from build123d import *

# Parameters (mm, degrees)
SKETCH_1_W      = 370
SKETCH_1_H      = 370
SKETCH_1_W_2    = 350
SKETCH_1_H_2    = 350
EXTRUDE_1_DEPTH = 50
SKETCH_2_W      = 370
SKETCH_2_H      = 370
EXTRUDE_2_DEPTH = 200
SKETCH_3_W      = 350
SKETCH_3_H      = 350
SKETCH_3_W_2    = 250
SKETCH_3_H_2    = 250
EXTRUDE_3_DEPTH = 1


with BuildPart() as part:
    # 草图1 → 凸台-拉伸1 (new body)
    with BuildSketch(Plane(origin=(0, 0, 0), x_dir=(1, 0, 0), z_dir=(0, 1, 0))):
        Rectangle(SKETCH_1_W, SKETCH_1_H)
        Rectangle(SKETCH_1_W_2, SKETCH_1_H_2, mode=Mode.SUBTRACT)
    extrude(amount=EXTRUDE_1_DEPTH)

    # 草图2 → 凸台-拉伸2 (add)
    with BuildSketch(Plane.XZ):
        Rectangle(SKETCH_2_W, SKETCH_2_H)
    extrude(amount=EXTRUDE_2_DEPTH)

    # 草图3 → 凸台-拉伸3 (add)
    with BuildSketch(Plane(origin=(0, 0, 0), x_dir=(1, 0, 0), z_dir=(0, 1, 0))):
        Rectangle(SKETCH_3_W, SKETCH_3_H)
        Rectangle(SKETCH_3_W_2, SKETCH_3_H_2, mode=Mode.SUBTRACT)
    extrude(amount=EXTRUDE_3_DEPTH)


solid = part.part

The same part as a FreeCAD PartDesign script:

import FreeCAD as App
import Part
import Sketcher

V = App.Vector
Q = App.Units.Quantity


def add_polygon(sketch, points):
    """Adds a closed chain of lines whose ends are joined by coincident constraints."""
    first, n = sketch.GeometryCount, len(points)
    for a, b in zip(points, points[1:] + points[:1]):
        sketch.addGeometry(Part.LineSegment(App.Vector(*a, 0), App.Vector(*b, 0)), False)
    for i in range(n):
        sketch.addConstraint(Sketcher.Constraint("Coincident", first + i, 2, first + (i + 1) % n, 1))

doc = App.newDocument("Part")
body = doc.addObject("PartDesign::Body", "Body")

# Sketch on XZ plane
sketch1 = body.newObject("Sketcher::SketchObject", "Sketch")
sketch1.AttachmentSupport = (doc.getObject("XZ_Plane"), [""])
sketch1.MapMode = "FlatFace"
add_polygon(sketch1, [(-185, -185), (-185, 185), (185, 185), (185, -185)])  # lines 0-3
add_polygon(sketch1, [(175, 175), (-175, 175), (-175, -175), (175, -175)])  # lines 4-7
sketch1.addConstraint(Sketcher.Constraint("Vertical", 0))
sketch1.addConstraint(Sketcher.Constraint("Horizontal", 1))
sketch1.addConstraint(Sketcher.Constraint("Vertical", 2))
sketch1.addConstraint(Sketcher.Constraint("Horizontal", 3))
sketch1.addConstraint(Sketcher.Constraint("Horizontal", 4))
sketch1.addConstraint(Sketcher.Constraint("Vertical", 5))
sketch1.addConstraint(Sketcher.Constraint("Horizontal", 6))
sketch1.addConstraint(Sketcher.Constraint("Vertical", 7))
sketch1.addConstraint(Sketcher.Constraint("Symmetric", 0, 2, 2, 2, -1, 1))
sketch1.addConstraint(Sketcher.Constraint("Symmetric", 4, 2, 6, 2, -1, 1))
sketch1.addConstraint(Sketcher.Constraint("Equal", 3, 0))
sketch1.addConstraint(Sketcher.Constraint("Equal", 6, 5))
sketch1.addConstraint(Sketcher.Constraint("DistanceX", 1, 1, 1, 2, Q("370 mm")))
sketch1.addConstraint(Sketcher.Constraint("DistanceX", 4, 2, 4, 1, Q("350 mm")))
pad1 = body.newObject("PartDesign::Pad", "Pad")
pad1.Profile = sketch1
pad1.Length = 50
pad1.Reversed = True

# Sketch on XZ plane
sketch2 = body.newObject("Sketcher::SketchObject", "Sketch001")
sketch2.AttachmentSupport = (doc.getObject("XZ_Plane"), [""])
sketch2.MapMode = "FlatFace"
add_polygon(sketch2, [(-185, 185), (-185, -185), (185, -185), (185, 185)])  # lines 0-3
sketch2.addConstraint(Sketcher.Constraint("Vertical", 0))
sketch2.addConstraint(Sketcher.Constraint("Horizontal", 1))
sketch2.addConstraint(Sketcher.Constraint("Vertical", 2))
sketch2.addConstraint(Sketcher.Constraint("Horizontal", 3))
sketch2.addConstraint(Sketcher.Constraint("Symmetric", 0, 2, 2, 2, -1, 1))
sketch2.addConstraint(Sketcher.Constraint("Equal", 3, 0))
sketch2.addConstraint(Sketcher.Constraint("DistanceX", 1, 1, 1, 2, Q("370 mm")))
pad2 = body.newObject("PartDesign::Pad", "Pad001")
pad2.Profile = sketch2
pad2.Length = 200

# Sketch on XZ plane
sketch3 = body.newObject("Sketcher::SketchObject", "Sketch002")
sketch3.AttachmentSupport = (doc.getObject("XZ_Plane"), [""])
sketch3.MapMode = "FlatFace"
add_polygon(sketch3, [(-175, -175), (-175, 175), (175, 175), (175, -175)])  # lines 0-3
add_polygon(sketch3, [(125, 125), (-125, 125), (-125, -125), (125, -125)])  # lines 4-7
sketch3.addConstraint(Sketcher.Constraint("Vertical", 0))
sketch3.addConstraint(Sketcher.Constraint("Horizontal", 1))
sketch3.addConstraint(Sketcher.Constraint("Vertical", 2))
sketch3.addConstraint(Sketcher.Constraint("Horizontal", 3))
sketch3.addConstraint(Sketcher.Constraint("Horizontal", 4))
sketch3.addConstraint(Sketcher.Constraint("Vertical", 5))
sketch3.addConstraint(Sketcher.Constraint("Horizontal", 6))
sketch3.addConstraint(Sketcher.Constraint("Vertical", 7))
sketch3.addConstraint(Sketcher.Constraint("Symmetric", 0, 2, 2, 2, -1, 1))
sketch3.addConstraint(Sketcher.Constraint("Symmetric", 4, 2, 6, 2, -1, 1))
sketch3.addConstraint(Sketcher.Constraint("Equal", 3, 0))
sketch3.addConstraint(Sketcher.Constraint("Equal", 6, 5))
sketch3.addConstraint(Sketcher.Constraint("DistanceX", 1, 1, 1, 2, Q("350 mm")))
sketch3.addConstraint(Sketcher.Constraint("DistanceX", 4, 2, 4, 1, Q("250 mm")))
pad3 = body.newObject("PartDesign::Pad", "Pad002")
pad3.Profile = sketch3
pad3.Length = 1
pad3.Reversed = True

doc.recompute()
